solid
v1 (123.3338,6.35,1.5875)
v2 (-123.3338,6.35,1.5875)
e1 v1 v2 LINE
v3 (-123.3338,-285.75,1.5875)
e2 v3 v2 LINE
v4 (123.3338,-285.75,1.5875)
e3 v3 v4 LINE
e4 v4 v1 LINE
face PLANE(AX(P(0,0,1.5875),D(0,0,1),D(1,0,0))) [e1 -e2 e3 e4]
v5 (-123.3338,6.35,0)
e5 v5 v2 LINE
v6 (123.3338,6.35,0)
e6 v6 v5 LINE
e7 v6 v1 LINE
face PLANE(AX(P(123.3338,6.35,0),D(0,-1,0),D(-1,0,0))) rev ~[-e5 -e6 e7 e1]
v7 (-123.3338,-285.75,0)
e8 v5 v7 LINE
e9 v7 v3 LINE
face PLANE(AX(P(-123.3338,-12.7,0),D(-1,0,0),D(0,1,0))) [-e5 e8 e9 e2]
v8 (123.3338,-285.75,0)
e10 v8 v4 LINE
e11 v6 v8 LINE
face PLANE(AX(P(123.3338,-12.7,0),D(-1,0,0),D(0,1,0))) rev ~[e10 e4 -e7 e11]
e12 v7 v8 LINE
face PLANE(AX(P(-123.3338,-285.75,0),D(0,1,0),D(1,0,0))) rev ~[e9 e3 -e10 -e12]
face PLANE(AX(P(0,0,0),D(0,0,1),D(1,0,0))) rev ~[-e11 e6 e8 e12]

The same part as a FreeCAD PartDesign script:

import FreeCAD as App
import Part
import Sketcher
Q = App.Units.Quantity


def add_polygon(sketch, points):
    """Adds a closed chain of lines whose ends are joined by coincident constraints."""
    first, n = sketch.GeometryCount, len(points)
    for a, b in zip(points, points[1:] + points[:1]):
        sketch.addGeometry(Part.LineSegment(App.Vector(*a, 0), App.Vector(*b, 0)), False)
    for i in range(n):
        sketch.addConstraint(Sketcher.Constraint("Coincident", first + i, 2, first + (i + 1) % n, 1))

doc = App.newDocument("Part")
params = doc.addObject("Spreadsheet::Sheet", "Params")
for row, (alias, value) in enumerate([
    ("sketch1_height", "11.5 in"),
    ("pad1_length", "0.0625 in"),
], start=1):
    params.set(f"A{row}", alias)
    params.set(f"B{row}", "=" + value)
    params.setAlias(f"B{row}", alias)

body = doc.addObject("PartDesign::Body", "Body")

sketch1 = doc.addObject("Sketcher::SketchObject", "Sketch")
body.addObject(sketch1)
sketch1.AttachmentSupport = (doc.XY_Plane, [""])
sketch1.MapMode = "FlatFace"
add_polygon(sketch1, [(-123, 6), (-123, -286), (123, -286), (123, 6)])
sketch1.addConstraint(Sketcher.Constraint("Vertical", 0))
sketch1.addConstraint(Sketcher.Constraint("Horizontal", 1))
sketch1.addConstraint(Sketcher.Constraint("Vertical", 2))
sketch1.addConstraint(Sketcher.Constraint("Horizontal", 3))
sketch1.addConstraint(Sketcher.Constraint("DistanceY", 0, 2, 0, 1, Q("11.5 in")))
sketch1.addConstraint(Sketcher.Constraint("DistanceY", 0, 2, -1, 1, Q("11.25 in")))
sketch1.addConstraint(Sketcher.Constraint("DistanceX", 1, 1, 1, 2, 246.6676))
sketch1.addConstraint(Sketcher.Constraint("DistanceX", 0, 2, -1, 1, 123.3338))
sketch1.setExpression("Constraints[8]", "Params.sketch1_height")
pad1 = doc.addObject("PartDesign::Pad", "Pad")
body.addObject(pad1)
pad1.Profile = sketch1
pad1.setExpression("Length", "Params.pad1_length")

doc.recompute()
